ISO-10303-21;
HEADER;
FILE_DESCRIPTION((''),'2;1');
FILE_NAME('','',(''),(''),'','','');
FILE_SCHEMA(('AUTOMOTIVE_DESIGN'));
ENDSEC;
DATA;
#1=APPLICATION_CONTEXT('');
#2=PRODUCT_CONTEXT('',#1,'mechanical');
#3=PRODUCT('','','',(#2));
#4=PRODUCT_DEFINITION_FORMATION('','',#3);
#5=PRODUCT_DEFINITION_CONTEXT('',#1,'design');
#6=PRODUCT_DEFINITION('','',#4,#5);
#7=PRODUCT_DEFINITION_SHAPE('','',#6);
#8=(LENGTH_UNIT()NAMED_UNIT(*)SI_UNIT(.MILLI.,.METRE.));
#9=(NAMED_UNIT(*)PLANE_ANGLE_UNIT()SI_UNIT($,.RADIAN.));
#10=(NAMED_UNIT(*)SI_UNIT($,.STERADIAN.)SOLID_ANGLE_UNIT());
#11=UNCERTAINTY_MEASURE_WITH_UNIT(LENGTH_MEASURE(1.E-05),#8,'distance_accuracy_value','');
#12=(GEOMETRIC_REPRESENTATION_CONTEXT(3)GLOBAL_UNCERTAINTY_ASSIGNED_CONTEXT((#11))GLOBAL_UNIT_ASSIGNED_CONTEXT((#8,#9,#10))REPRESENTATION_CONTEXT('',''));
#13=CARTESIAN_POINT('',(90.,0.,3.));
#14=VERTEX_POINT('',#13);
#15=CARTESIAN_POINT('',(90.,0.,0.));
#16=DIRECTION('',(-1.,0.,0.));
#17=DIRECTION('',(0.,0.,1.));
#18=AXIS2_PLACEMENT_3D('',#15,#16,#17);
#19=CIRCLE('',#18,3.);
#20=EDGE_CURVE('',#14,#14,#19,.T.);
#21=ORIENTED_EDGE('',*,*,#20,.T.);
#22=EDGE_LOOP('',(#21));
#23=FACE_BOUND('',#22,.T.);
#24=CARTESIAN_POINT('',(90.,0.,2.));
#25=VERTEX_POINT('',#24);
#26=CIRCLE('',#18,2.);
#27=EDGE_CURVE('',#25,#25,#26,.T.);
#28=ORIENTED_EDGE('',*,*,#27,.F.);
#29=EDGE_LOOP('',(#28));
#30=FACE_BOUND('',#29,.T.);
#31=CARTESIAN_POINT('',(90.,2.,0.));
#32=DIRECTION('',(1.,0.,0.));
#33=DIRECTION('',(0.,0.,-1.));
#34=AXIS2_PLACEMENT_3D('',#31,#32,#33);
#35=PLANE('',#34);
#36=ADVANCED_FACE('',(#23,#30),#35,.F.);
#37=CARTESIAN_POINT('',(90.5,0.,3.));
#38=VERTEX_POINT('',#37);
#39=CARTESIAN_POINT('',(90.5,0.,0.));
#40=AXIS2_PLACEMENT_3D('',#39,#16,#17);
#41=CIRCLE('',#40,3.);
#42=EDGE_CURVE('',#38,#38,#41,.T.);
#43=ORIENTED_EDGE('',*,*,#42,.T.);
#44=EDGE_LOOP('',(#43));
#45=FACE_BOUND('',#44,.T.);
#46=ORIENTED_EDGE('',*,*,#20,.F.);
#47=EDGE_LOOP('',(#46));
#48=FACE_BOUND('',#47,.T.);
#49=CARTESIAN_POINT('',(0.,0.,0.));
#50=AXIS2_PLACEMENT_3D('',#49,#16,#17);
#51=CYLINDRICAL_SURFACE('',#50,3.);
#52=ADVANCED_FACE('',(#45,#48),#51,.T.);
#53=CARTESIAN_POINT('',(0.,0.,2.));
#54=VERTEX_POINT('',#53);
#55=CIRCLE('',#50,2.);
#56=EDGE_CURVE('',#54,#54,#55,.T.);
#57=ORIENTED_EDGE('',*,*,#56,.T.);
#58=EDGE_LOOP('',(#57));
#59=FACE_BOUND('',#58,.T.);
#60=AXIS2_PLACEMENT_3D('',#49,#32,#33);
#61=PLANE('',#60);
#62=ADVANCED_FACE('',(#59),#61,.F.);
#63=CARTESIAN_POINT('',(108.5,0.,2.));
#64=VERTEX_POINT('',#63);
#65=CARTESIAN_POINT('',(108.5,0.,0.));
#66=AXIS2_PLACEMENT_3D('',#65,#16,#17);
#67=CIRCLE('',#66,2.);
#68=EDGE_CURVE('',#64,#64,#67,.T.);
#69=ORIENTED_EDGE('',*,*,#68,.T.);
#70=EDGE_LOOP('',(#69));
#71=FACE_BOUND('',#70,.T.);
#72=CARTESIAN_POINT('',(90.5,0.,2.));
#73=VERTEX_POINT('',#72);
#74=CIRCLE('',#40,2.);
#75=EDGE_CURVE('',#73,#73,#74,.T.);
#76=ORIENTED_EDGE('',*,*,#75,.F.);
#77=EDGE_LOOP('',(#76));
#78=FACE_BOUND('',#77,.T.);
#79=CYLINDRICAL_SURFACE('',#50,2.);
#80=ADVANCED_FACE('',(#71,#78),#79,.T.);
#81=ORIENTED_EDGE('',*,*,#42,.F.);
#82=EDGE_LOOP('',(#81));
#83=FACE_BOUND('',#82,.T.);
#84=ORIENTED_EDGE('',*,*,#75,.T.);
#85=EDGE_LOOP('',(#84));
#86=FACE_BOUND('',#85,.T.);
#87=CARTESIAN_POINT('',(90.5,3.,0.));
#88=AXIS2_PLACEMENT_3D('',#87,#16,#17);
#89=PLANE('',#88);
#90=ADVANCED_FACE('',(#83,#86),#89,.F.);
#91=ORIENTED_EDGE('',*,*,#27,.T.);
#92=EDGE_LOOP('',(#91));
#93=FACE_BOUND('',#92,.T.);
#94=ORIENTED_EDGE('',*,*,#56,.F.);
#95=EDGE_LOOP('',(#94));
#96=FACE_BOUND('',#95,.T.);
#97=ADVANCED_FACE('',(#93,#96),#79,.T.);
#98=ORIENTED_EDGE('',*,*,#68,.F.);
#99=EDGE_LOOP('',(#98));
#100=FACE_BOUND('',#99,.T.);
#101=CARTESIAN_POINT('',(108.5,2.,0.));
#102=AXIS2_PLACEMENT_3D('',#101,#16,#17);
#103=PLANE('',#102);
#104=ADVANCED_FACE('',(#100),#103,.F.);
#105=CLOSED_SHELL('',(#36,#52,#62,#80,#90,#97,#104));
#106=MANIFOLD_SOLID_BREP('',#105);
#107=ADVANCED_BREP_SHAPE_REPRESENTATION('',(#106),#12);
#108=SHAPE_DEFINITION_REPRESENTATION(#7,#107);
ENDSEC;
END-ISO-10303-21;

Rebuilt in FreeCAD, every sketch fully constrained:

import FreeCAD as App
import Part
import Sketcher

V = App.Vector
Q = App.Units.Quantity

doc = App.newDocument("Part")
body = doc.addObject("PartDesign::Body", "Body")

# Sketch on XY plane
sketch1 = body.newObject("Sketcher::SketchObject", "Sketch")
sketch1.AttachmentSupport = (doc.getObject("XY_Plane"), [""])
sketch1.MapMode = "FlatFace"
sketch1.addGeometry([
    Part.LineSegment(V(0, 2, 0), V(0, 0, 0)),  # 0
    Part.LineSegment(V(0, 0, 0), V(108.5, 0, 0)),  # 1
    Part.LineSegment(V(108.5, 0, 0), V(108.5, 2, 0)),  # 2
    Part.LineSegment(V(108.5, 2, 0), V(90.5, 2, 0)),  # 3
    Part.LineSegment(V(90.5, 2, 0), V(90.5, 3, 0)),  # 4
    Part.LineSegment(V(90.5, 3, 0), V(90, 3, 0)),  # 5
    Part.LineSegment(V(90, 3, 0), V(90, 2, 0)),  # 6
    Part.LineSegment(V(90, 2, 0), V(0, 2, 0)),  # 7
], False)
sketch1.addConstraint([
    Sketcher.Constraint("Coincident", 0, 2, 1, 1),
    Sketcher.Constraint("Coincident", 1, 2, 2, 1),
    Sketcher.Constraint("Coincident", 2, 2, 3, 1),
    Sketcher.Constraint("Coincident", 3, 2, 4, 1),
    Sketcher.Constraint("Coincident", 4, 2, 5, 1),
    Sketcher.Constraint("Coincident", 5, 2, 6, 1),
    Sketcher.Constraint("Coincident", 6, 2, 7, 1),
    Sketcher.Constraint("Coincident", 7, 2, 0, 1),
    Sketcher.Constraint("Vertical", 0),
    Sketcher.Constraint("Horizontal", 1),
    Sketcher.Constraint("Vertical", 2),
    Sketcher.Constraint("Horizontal", 3),
    Sketcher.Constraint("Vertical", 4),
    Sketcher.Constraint("Horizontal", 5),
    Sketcher.Constraint("Vertical", 6),
    Sketcher.Constraint("Horizontal", 7),
    Sketcher.Constraint("Coincident", 0, 2, -1, 1),
    Sketcher.Constraint("Horizontal", 3, 2, 6, 2),
    Sketcher.Constraint("DistanceX", 3, 2, 3, 1, Q("18 mm")),
    Sketcher.Constraint("DistanceX", 7, 2, 7, 1, Q("90 mm")),
    Sketcher.Constraint("DistanceY", 0, 2, 0, 1, Q("2 mm")),
    Sketcher.Constraint("DistanceY", 4, 1, 4, 2, Q("1 mm")),
    Sketcher.Constraint("DistanceX", 1, 1, 1, 2, Q("108.5 mm")),
])
revolution = body.newObject("PartDesign::Revolution", "Revolution")
revolution.Profile = sketch1
revolution.ReferenceAxis = (sketch1, ["H_Axis"])
revolution.Angle = 360

doc.recompute()
